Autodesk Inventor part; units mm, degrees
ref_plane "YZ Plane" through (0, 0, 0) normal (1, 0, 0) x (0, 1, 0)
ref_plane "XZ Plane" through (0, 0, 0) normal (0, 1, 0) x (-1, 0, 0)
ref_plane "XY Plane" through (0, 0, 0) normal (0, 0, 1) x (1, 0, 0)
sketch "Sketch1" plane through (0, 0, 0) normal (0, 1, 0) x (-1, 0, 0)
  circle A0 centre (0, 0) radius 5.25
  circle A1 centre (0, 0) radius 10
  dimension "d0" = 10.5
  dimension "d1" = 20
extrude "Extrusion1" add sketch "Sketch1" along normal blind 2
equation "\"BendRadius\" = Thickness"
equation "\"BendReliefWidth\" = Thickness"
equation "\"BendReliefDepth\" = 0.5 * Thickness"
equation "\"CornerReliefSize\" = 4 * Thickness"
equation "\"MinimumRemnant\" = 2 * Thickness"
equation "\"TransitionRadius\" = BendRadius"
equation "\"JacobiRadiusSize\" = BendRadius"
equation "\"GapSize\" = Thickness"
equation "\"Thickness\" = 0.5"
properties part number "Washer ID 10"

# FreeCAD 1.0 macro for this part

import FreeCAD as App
import Part
import Sketcher
from FreeCAD import Vector
Q = App.Units.Quantity

doc = App.newDocument("Part")
body = doc.addObject("PartDesign::Body", "Body")

sketch1 = body.newObject("Sketcher::SketchObject", "Sketch")
sketch1.AttachmentSupport = (doc.getObject("XZ_Plane"), [""])
sketch1.MapMode = "FlatFace"
sketch1.addGeometry([
    Part.Circle(Vector(0, 0, 0), Vector(0, 0, 1), 10),
    Part.Circle(Vector(0, 0, 0), Vector(0, 0, 1), 5),
], False)
sketch1.addConstraint([
    Sketcher.Constraint("Coincident", 0, 3, -1, 1),
    Sketcher.Constraint("Coincident", 1, 3, -1, 1),
    Sketcher.Constraint("Diameter", 0, Q("20 mm")),
    Sketcher.Constraint("Diameter", 1, Q("10.5 mm")),
])
pad1 = body.newObject("PartDesign::Pad", "Pad")
pad1.Profile = sketch1
pad1.Length = 2
pad1.Reversed = True

doc.recompute()
